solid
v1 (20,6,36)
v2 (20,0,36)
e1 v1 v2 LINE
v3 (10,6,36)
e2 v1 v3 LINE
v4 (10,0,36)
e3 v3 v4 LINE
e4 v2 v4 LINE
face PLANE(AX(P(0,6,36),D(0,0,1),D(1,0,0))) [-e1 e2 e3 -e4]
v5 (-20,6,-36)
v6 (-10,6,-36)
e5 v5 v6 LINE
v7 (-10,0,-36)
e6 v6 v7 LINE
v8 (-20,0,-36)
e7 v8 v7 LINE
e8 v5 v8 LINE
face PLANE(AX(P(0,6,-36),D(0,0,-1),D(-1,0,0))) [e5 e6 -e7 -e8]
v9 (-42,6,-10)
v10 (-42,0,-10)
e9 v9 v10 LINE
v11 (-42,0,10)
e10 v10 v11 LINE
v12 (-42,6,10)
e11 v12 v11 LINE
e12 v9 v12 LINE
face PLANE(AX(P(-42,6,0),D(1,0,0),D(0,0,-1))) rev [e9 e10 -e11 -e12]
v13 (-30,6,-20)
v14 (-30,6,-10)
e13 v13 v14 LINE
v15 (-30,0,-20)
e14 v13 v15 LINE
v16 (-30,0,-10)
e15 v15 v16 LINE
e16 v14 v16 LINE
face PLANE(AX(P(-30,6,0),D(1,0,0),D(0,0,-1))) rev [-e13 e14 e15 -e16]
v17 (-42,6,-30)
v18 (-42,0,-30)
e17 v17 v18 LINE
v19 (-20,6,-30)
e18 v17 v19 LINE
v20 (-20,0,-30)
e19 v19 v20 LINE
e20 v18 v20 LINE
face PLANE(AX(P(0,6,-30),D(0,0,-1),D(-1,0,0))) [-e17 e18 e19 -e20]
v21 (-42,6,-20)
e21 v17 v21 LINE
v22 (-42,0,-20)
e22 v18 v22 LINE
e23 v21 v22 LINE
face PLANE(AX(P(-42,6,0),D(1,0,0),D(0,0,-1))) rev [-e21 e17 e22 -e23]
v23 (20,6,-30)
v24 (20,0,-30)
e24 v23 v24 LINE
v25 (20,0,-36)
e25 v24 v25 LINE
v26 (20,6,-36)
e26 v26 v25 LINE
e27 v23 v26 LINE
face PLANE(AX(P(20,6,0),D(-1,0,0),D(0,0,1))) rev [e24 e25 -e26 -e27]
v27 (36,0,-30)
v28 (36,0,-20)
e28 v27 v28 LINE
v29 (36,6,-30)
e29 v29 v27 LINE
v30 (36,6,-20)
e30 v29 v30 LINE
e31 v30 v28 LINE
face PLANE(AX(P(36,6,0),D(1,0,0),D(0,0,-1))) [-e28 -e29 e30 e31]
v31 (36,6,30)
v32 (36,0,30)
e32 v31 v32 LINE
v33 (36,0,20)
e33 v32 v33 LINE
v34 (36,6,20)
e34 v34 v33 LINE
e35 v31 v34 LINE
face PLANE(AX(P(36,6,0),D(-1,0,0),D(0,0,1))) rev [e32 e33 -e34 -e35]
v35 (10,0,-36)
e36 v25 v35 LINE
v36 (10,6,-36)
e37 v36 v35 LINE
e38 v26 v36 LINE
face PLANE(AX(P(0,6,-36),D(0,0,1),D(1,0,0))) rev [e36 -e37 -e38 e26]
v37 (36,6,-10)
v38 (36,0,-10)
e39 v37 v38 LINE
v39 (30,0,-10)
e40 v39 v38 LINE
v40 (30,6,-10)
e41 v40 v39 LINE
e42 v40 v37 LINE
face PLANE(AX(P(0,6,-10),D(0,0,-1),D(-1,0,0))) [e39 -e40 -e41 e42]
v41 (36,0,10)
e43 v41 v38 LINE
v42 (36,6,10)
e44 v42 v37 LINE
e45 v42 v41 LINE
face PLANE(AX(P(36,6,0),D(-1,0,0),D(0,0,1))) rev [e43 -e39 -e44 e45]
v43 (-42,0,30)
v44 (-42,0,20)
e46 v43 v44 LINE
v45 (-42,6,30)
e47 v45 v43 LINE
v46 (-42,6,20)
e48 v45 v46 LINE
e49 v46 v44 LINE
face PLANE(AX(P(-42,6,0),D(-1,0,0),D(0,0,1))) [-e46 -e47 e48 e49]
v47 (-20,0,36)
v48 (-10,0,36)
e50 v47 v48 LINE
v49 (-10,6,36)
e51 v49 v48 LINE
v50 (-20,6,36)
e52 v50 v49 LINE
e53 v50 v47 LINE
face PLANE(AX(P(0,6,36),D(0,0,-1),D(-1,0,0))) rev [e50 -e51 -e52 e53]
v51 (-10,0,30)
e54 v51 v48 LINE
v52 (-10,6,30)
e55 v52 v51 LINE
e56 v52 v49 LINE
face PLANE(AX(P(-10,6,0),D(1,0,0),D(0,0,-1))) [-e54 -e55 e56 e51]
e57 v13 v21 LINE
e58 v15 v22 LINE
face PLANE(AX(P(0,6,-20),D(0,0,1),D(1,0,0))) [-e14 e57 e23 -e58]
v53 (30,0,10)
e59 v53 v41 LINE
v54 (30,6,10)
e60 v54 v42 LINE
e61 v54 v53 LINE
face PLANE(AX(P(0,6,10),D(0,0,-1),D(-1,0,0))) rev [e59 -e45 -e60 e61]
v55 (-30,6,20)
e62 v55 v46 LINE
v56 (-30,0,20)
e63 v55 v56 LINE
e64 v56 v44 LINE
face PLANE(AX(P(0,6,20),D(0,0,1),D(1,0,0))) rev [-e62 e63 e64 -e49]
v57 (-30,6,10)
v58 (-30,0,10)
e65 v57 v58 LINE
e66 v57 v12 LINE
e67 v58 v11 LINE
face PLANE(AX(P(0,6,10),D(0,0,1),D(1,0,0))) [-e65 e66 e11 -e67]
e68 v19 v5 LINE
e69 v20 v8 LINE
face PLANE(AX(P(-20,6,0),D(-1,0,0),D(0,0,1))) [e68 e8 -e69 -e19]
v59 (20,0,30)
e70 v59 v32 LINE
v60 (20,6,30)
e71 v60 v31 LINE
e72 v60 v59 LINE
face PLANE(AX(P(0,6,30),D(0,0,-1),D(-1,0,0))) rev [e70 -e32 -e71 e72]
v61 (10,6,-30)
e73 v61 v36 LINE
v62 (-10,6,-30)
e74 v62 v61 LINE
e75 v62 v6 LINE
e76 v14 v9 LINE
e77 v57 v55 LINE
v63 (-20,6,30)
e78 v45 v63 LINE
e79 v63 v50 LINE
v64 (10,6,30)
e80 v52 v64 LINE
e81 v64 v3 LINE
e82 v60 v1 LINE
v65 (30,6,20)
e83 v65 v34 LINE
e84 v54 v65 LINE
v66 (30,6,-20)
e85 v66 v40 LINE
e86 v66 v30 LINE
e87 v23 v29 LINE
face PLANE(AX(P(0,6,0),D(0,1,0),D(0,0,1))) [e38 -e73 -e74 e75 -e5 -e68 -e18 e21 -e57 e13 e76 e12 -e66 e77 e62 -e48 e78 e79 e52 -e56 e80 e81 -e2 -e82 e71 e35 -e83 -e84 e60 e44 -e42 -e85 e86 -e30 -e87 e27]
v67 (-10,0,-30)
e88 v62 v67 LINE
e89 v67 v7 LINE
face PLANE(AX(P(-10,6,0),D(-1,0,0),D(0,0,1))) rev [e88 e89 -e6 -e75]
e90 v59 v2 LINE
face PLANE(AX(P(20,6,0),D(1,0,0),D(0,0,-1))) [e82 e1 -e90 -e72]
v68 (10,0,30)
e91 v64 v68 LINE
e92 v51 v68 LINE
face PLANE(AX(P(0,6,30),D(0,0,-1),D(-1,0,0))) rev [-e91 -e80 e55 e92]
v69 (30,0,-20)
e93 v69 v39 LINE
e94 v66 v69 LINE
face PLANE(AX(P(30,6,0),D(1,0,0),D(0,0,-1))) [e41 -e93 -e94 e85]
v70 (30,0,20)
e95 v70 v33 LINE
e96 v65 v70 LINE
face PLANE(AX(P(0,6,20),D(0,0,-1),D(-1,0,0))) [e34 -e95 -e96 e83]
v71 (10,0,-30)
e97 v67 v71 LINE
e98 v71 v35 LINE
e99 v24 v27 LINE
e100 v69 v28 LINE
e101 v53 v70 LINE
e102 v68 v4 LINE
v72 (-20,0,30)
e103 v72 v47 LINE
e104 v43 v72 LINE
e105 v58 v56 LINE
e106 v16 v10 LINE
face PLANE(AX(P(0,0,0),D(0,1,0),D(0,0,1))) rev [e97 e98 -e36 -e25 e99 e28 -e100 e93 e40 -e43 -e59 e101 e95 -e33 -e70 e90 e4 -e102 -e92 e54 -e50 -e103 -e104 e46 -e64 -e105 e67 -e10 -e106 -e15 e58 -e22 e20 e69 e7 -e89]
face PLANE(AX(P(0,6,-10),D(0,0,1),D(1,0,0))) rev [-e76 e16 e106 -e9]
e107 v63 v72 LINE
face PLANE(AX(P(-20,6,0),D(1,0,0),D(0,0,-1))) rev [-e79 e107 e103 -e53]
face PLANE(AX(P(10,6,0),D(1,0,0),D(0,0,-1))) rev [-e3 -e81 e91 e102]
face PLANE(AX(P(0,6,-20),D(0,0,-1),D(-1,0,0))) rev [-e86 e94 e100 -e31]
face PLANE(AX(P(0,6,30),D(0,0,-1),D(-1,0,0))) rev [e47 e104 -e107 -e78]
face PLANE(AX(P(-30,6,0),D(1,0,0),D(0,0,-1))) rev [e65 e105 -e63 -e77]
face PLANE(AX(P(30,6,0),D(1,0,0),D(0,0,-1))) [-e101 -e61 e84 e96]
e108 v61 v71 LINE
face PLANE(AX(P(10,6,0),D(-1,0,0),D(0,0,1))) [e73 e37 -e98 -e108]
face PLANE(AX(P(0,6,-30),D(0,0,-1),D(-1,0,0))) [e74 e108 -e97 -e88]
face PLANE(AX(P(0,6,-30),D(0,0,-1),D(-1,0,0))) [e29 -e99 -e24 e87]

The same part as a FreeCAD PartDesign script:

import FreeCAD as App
import Part
import Sketcher

doc = App.newDocument("Part")
body = doc.addObject("PartDesign::Body", "Body")

# Sketch on XZ plane
sketch1 = body.newObject("Sketcher::SketchObject", "Sketch")
sketch1.AttachmentSupport = (doc.getObject("XZ_Plane"), [""])
sketch1.MapMode = "FlatFace"
sketch1.addGeometry([
    Part.LineSegment(App.Vector(-42, -30, 0), App.Vector(-42, -20, 0)),  # 0
    Part.LineSegment(App.Vector(-42, -20, 0), App.Vector(-30, -20, 0)),  # 1
    Part.LineSegment(App.Vector(-30, -20, 0), App.Vector(-30, -10, 0)),  # 2
    Part.LineSegment(App.Vector(-30, -10, 0), App.Vector(-42, -10, 0)),  # 3
    Part.LineSegment(App.Vector(-42, -10, 0), App.Vector(-42, 10, 0)),  # 4
    Part.LineSegment(App.Vector(-42, 10, 0), App.Vector(-30, 10, 0)),  # 5
    Part.LineSegment(App.Vector(-30, 10, 0), App.Vector(-30, 20, 0)),  # 6
    Part.LineSegment(App.Vector(-30, 20, 0), App.Vector(-42, 20, 0)),  # 7
    Part.LineSegment(App.Vector(-42, 20, 0), App.Vector(-42, 30, 0)),  # 8
    Part.LineSegment(App.Vector(-42, 30, 0), App.Vector(-20, 30, 0)),  # 9
    Part.LineSegment(App.Vector(-20, 30, 0), App.Vector(-20, 36, 0)),  # 10
    Part.LineSegment(App.Vector(-20, 36, 0), App.Vector(-10, 36, 0)),  # 11
    Part.LineSegment(App.Vector(-10, 36, 0), App.Vector(-10, 30, 0)),  # 12
    Part.LineSegment(App.Vector(-10, 30, 0), App.Vector(10, 30, 0)),  # 13
    Part.LineSegment(App.Vector(10, 30, 0), App.Vector(10, 36, 0)),  # 14
    Part.LineSegment(App.Vector(10, 36, 0), App.Vector(20, 36, 0)),  # 15
    Part.LineSegment(App.Vector(20, 36, 0), App.Vector(20, 30, 0)),  # 16
    Part.LineSegment(App.Vector(20, 30, 0), App.Vector(36, 30, 0)),  # 17
    Part.LineSegment(App.Vector(36, 30, 0), App.Vector(36, 20, 0)),  # 18
    Part.LineSegment(App.Vector(36, 20, 0), App.Vector(30, 20, 0)),  # 19
    Part.LineSegment(App.Vector(30, 20, 0), App.Vector(30, 10, 0)),  # 20
    Part.LineSegment(App.Vector(30, 10, 0), App.Vector(36, 10, 0)),  # 21
    Part.LineSegment(App.Vector(36, 10, 0), App.Vector(36, -10, 0)),  # 22
    Part.LineSegment(App.Vector(36, -10, 0), App.Vector(30, -10, 0)),  # 23
    Part.LineSegment(App.Vector(30, -10, 0), App.Vector(30, -20, 0)),  # 24
    Part.LineSegment(App.Vector(30, -20, 0), App.Vector(36, -20, 0)),  # 25
    Part.LineSegment(App.Vector(36, -20, 0), App.Vector(36, -30, 0)),  # 26
    Part.LineSegment(App.Vector(36, -30, 0), App.Vector(20, -30, 0)),  # 27
    Part.LineSegment(App.Vector(20, -30, 0), App.Vector(20, -36, 0)),  # 28
    Part.LineSegment(App.Vector(20, -36, 0), App.Vector(10, -36, 0)),  # 29
    Part.LineSegment(App.Vector(10, -36, 0), App.Vector(10, -30, 0)),  # 30
    Part.LineSegment(App.Vector(10, -30, 0), App.Vector(-10, -30, 0)),  # 31
    Part.LineSegment(App.Vector(-10, -30, 0), App.Vector(-10, -36, 0)),  # 32
    Part.LineSegment(App.Vector(-10, -36, 0), App.Vector(-20, -36, 0)),  # 33
    Part.LineSegment(App.Vector(-20, -36, 0), App.Vector(-20, -30, 0)),  # 34
    Part.LineSegment(App.Vector(-20, -30, 0), App.Vector(-42, -30, 0)),  # 35
], False)
sketch1.addConstraint([
    Sketcher.Constraint("Coincident", 0, 2, 1, 1),
    Sketcher.Constraint("Coincident", 1, 2, 2, 1),
    Sketcher.Constraint("Coincident", 2, 2, 3, 1),
    Sketcher.Constraint("Coincident", 3, 2, 4, 1),
    Sketcher.Constraint("Coincident", 4, 2, 5, 1),
    Sketcher.Constraint("Coincident", 5, 2, 6, 1),
    Sketcher.Constraint("Coincident", 6, 2, 7, 1),
    Sketcher.Constraint("Coincident", 7, 2, 8, 1),
    Sketcher.Constraint("Coincident", 8, 2, 9, 1),
    Sketcher.Constraint("Coincident", 9, 2, 10, 1),
    Sketcher.Constraint("Coincident", 10, 2, 11, 1),
    Sketcher.Constraint("Coincident", 11, 2, 12, 1),
    Sketcher.Constraint("Coincident", 12, 2, 13, 1),
    Sketcher.Constraint("Coincident", 13, 2, 14, 1),
    Sketcher.Constraint("Coincident", 14, 2, 15, 1),
    Sketcher.Constraint("Coincident", 15, 2, 16, 1),
    Sketcher.Constraint("Coincident", 16, 2, 17, 1),
    Sketcher.Constraint("Coincident", 17, 2, 18, 1),
    Sketcher.Constraint("Coincident", 18, 2, 19, 1),
    Sketcher.Constraint("Coincident", 19, 2, 20, 1),
    Sketcher.Constraint("Coincident", 20, 2, 21, 1),
    Sketcher.Constraint("Coincident", 21, 2, 22, 1),
    Sketcher.Constraint("Coincident", 22, 2, 23, 1),
    Sketcher.Constraint("Coincident", 23, 2, 24, 1),
    Sketcher.Constraint("Coincident", 24, 2, 25, 1),
    Sketcher.Constraint("Coincident", 25, 2, 26, 1),
    Sketcher.Constraint("Coincident", 26, 2, 27, 1),
    Sketcher.Constraint("Coincident", 27, 2, 28, 1),
    Sketcher.Constraint("Coincident", 28, 2, 29, 1),
    Sketcher.Constraint("Coincident", 29, 2, 30, 1),
    Sketcher.Constraint("Coincident", 30, 2, 31, 1),
    Sketcher.Constraint("Coincident", 31, 2, 32, 1),
    Sketcher.Constraint("Coincident", 32, 2, 33, 1),
    Sketcher.Constraint("Coincident", 33, 2, 34, 1),
    Sketcher.Constraint("Coincident", 34, 2, 35, 1),
    Sketcher.Constraint("Coincident", 35, 2, 0, 1),
    Sketcher.Constraint("Vertical", 0),
    Sketcher.Constraint("Horizontal", 1),
    Sketcher.Constraint("Vertical", 2),
    Sketcher.Constraint("Horizontal", 3),
    Sketcher.Constraint("Vertical", 4),
    Sketcher.Constraint("Horizontal", 5),
    Sketcher.Constraint("Vertical", 6),
    Sketcher.Constraint("Horizontal", 7),
    Sketcher.Constraint("Vertical", 8),
    Sketcher.Constraint("Horizontal", 9),
    Sketcher.Constraint("Vertical", 10),
    Sketcher.Constraint("Horizontal", 11),
    Sketcher.Constraint("Vertical", 12),
    Sketcher.Constraint("Horizontal", 13),
    Sketcher.Constraint("Vertical", 14),
    Sketcher.Constraint("Horizontal", 15),
    Sketcher.Constraint("Vertical", 16),
    Sketcher.Constraint("Horizontal", 17),
    Sketcher.Constraint("Vertical", 18),
    Sketcher.Constraint("Horizontal", 19),
    Sketcher.Constraint("Vertical", 20),
    Sketcher.Constraint("Horizontal", 21),
    Sketcher.Constraint("Vertical", 22),
    Sketcher.Constraint("Horizontal", 23),
    Sketcher.Constraint("Vertical", 24),
    Sketcher.Constraint("Horizontal", 25),
    Sketcher.Constraint("Vertical", 26),
    Sketcher.Constraint("Horizontal", 27),
    Sketcher.Constraint("Vertical", 28),
    Sketcher.Constraint("Horizontal", 29),
    Sketcher.Constraint("Vertical", 30),
    Sketcher.Constraint("Horizontal", 31),
    Sketcher.Constraint("Vertical", 32),
    Sketcher.Constraint("Horizontal", 33),
    Sketcher.Constraint("Vertical", 34),
    Sketcher.Constraint("Horizontal", 35),
    Sketcher.Constraint("Symmetric", 1, 2, 19, 2, -1, 1),
    Sketcher.Constraint("Symmetric", 5, 2, 23, 2, -1, 1),
    Sketcher.Constraint("Symmetric", 9, 2, 27, 2, -1, 1),
    Sketcher.Constraint("Symmetric", 11, 2, 29, 2, -1, 1),
    Sketcher.Constraint("Symmetric", 13, 2, 31, 2, -1, 1),
    Sketcher.Constraint("Symmetric", 15, 2, 33, 2, -1, 1),
    Sketcher.Constraint("Symmetric", 11, 2, 14, 2, -2),
    Sketcher.Constraint("Symmetric", 9, 2, 16, 2, -2),
    Sketcher.Constraint("Symmetric", 6, 2, 19, 2, -2),
    Sketcher.Constraint("Symmetric", 18, 2, 25, 2, -1),
    Sketcher.Constraint("Symmetric", 8, 2, 35, 2, -1),
    Sketcher.Constraint("Horizontal", 9, 2, 12, 2),
    Sketcher.Constraint("Horizontal", 5, 2, 20, 2),
    Sketcher.Constraint("Horizontal", 3, 2, 22, 2),
    Sketcher.Constraint("Vertical", 0, 2, 3, 2),
    Sketcher.Constraint("Vertical", 18, 2, 21, 2),
    Sketcher.Constraint("Equal", 33, 0),
    Sketcher.Constraint("Equal", 0, 2),
    Sketcher.Constraint("Equal", 31, 4),
    Sketcher.Constraint("Equal", 25, 10),
    Sketcher.Constraint("DistanceX", 1, 1, 1, 2, 12.0),
    Sketcher.Constraint("DistanceX", 9, 1, 9, 2, 22.0),
    Sketcher.Constraint("DistanceX", 11, 1, 11, 2, 10.0),
    Sketcher.Constraint("DistanceX", 13, 1, 13, 2, 20.0),
    Sketcher.Constraint("DistanceX", 17, 1, 17, 2, 16.0),
])
pad1 = body.newObject("PartDesign::Pad", "Pad")
pad1.Profile = sketch1
pad1.Length = 6
pad1.Reversed = True

doc.recompute()
